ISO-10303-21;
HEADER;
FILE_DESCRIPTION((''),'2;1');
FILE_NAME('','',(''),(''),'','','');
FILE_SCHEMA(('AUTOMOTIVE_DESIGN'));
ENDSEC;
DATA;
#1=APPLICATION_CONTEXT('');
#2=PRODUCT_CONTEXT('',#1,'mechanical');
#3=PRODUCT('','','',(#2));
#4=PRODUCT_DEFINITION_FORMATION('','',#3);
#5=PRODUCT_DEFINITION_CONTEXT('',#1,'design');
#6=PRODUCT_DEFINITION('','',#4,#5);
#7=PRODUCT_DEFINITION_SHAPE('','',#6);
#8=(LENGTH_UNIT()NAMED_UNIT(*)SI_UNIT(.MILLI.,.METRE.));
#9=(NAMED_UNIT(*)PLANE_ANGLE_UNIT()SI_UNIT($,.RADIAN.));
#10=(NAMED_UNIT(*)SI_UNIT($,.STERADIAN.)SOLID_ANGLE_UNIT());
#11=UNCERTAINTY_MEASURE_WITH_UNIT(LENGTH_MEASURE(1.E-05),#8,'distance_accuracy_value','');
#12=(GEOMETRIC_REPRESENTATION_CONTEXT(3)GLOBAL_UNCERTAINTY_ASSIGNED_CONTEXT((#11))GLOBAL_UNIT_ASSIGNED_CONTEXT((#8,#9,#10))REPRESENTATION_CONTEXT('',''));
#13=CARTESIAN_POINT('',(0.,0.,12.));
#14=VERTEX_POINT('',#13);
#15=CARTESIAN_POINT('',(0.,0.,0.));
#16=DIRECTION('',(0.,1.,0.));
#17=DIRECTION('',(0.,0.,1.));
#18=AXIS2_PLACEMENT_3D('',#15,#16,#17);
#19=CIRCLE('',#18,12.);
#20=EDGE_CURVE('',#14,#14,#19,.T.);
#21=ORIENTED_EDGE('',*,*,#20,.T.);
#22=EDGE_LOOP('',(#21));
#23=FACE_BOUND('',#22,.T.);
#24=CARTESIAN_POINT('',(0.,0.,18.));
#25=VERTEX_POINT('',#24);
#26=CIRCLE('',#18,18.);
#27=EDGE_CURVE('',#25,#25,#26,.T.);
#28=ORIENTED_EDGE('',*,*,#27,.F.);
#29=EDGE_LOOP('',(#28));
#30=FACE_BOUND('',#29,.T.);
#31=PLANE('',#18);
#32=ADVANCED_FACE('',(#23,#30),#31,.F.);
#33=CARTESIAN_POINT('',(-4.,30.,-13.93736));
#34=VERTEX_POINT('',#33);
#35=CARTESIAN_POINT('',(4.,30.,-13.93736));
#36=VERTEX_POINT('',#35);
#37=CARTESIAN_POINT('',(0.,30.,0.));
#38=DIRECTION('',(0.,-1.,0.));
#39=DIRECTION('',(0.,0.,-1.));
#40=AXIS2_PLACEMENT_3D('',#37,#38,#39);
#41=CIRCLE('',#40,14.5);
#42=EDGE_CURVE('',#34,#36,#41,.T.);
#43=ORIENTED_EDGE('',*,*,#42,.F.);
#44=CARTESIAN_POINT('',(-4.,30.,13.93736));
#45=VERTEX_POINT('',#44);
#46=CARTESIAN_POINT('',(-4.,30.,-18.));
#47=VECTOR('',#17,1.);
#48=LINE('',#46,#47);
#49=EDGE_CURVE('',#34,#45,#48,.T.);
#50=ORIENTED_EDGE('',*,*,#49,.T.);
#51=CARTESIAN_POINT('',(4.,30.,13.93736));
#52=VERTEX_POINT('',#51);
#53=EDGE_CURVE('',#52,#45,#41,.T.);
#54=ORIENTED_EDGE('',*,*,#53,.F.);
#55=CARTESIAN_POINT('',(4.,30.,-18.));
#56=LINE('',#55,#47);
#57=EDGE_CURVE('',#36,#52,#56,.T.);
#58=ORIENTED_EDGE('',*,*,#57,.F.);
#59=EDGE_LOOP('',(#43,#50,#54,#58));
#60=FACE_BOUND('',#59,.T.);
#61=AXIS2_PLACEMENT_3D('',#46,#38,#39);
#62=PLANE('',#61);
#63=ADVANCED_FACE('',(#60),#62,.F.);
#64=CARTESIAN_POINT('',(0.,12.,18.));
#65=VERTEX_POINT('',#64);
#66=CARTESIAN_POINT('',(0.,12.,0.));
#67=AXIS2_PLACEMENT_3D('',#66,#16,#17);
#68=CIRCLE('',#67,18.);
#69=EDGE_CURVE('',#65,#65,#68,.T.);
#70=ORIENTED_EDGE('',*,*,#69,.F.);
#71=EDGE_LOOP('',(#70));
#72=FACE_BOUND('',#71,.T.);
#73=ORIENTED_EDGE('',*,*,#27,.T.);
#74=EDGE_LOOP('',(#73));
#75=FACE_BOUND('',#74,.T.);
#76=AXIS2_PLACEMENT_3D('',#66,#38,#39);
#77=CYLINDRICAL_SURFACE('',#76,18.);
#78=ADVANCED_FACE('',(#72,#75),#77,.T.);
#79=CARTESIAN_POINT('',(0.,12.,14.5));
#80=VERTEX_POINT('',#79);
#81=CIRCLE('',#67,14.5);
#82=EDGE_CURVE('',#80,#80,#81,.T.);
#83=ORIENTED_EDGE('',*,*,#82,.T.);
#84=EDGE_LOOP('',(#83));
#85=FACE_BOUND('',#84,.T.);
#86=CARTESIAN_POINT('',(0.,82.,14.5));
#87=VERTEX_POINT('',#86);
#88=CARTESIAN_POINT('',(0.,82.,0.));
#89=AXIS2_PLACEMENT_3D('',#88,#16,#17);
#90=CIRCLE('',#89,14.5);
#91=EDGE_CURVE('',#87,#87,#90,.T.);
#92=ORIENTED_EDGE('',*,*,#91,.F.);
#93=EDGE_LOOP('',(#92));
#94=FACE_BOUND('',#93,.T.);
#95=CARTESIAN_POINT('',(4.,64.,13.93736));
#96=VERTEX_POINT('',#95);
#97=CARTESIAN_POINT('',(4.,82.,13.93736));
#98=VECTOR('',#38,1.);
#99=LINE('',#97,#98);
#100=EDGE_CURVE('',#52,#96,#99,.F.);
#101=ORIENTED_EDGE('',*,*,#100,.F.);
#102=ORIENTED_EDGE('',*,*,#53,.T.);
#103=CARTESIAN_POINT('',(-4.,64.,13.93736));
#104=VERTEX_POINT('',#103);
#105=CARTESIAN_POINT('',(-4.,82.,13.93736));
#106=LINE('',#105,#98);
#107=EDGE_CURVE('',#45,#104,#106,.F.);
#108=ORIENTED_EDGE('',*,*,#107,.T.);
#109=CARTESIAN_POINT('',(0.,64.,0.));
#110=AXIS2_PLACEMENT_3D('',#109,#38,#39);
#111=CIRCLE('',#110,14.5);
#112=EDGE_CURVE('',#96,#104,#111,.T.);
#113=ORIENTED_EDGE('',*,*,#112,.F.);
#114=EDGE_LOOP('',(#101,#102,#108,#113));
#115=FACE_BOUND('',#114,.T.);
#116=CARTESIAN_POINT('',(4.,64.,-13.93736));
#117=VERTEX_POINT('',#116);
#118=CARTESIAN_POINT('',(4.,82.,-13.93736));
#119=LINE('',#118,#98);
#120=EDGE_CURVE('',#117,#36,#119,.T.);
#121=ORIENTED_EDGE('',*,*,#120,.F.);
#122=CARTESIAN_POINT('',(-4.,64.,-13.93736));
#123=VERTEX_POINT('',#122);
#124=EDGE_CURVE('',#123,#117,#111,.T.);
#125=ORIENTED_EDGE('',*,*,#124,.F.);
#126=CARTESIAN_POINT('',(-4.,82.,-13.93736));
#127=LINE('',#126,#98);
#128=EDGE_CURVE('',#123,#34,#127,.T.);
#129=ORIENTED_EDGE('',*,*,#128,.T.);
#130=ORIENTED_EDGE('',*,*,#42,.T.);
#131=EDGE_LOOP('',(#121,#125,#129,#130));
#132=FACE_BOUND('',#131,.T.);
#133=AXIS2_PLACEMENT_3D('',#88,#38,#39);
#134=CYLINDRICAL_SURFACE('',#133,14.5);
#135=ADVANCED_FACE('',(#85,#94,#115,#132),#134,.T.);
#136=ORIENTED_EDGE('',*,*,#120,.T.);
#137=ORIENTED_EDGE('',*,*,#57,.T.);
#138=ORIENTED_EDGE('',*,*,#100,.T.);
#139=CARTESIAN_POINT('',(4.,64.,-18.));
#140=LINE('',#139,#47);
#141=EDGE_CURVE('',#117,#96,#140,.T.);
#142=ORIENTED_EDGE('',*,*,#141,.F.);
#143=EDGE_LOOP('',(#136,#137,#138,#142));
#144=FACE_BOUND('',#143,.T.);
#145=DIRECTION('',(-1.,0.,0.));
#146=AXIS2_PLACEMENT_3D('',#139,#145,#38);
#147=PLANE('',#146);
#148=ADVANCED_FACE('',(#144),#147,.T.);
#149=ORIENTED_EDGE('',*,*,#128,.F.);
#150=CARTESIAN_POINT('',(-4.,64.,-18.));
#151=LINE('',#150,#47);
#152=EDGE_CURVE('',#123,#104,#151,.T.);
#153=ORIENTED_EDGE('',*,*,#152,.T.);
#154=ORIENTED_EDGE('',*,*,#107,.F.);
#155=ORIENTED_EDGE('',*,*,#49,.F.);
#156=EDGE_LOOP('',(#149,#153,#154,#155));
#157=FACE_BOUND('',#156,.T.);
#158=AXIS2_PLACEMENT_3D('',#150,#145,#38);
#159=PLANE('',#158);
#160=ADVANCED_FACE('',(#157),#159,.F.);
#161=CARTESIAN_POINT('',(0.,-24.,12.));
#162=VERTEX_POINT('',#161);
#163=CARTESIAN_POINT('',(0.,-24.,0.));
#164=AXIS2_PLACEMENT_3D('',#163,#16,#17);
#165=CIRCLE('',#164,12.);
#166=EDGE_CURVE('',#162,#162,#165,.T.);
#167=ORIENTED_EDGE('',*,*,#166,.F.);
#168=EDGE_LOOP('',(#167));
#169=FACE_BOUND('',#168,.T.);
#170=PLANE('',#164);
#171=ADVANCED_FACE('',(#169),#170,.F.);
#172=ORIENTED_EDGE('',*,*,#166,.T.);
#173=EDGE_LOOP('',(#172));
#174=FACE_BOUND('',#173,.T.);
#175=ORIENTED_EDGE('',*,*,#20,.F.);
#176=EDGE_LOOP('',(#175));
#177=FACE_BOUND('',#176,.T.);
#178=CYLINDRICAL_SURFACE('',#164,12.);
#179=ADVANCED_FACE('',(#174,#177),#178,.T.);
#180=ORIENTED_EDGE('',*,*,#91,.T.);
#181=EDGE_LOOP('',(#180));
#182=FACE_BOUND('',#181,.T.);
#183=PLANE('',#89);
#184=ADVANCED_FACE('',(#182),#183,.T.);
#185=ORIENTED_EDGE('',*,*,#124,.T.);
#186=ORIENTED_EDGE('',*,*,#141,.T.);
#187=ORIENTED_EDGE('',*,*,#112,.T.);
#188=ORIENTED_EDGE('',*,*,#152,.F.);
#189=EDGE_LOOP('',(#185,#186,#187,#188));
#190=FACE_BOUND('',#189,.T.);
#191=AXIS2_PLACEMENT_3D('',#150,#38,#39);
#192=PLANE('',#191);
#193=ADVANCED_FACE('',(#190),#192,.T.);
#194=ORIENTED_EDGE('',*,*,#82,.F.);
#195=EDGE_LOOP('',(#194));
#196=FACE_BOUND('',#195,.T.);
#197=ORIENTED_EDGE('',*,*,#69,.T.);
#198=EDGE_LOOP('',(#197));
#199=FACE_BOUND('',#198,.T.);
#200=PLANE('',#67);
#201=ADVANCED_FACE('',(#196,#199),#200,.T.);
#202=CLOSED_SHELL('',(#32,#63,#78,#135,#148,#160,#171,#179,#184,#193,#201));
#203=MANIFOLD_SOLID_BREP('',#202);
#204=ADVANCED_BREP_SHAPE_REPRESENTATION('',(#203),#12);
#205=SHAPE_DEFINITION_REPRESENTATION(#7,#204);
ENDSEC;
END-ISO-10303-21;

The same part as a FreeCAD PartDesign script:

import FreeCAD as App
import Part
import Sketcher
from FreeCAD import Vector
Q = App.Units.Quantity

doc = App.newDocument("Part")
body = doc.addObject("PartDesign::Body", "Body")

sketch1 = doc.addObject("Sketcher::SketchObject", "Sketch")
body.addObject(sketch1)
sketch1.AttachmentSupport = (doc.XZ_Plane, [""])
sketch1.MapMode = "FlatFace"
sketch1.addGeometry(Part.Circle(Vector(0, 0, 0), Vector(0, 0, 1), 12), False)
sketch1.addConstraint([
    Sketcher.Constraint("Coincident", 0, 3, -1, 1),
    Sketcher.Constraint("Diameter", 0, Q("24 mm")),
])
pad1 = doc.addObject("PartDesign::Pad", "Pad")
body.addObject(pad1)
pad1.Profile = sketch1
pad1.Length = 24

sketch2 = doc.addObject("Sketcher::SketchObject", "Sketch001")
body.addObject(sketch2)
sketch2.AttachmentSupport = (doc.XZ_Plane, [""])
sketch2.MapMode = "FlatFace"
sketch2.AttachmentOffset = App.Placement(Vector(0, 0, -12), App.Rotation())
sketch2.addGeometry(Part.Circle(Vector(0, 0, 0), Vector(0, 0, 1), 18), False)
sketch2.addConstraint([
    Sketcher.Constraint("Coincident", 0, 3, -1, 1),
    Sketcher.Constraint("Diameter", 0, Q("36 mm")),
])
pad2 = doc.addObject("PartDesign::Pad", "Pad001")
body.addObject(pad2)
pad2.Profile = sketch2
pad2.Length = 12

sketch3 = doc.addObject("Sketcher::SketchObject", "Sketch002")
body.addObject(sketch3)
sketch3.AttachmentSupport = (doc.XZ_Plane, [""])
sketch3.MapMode = "FlatFace"
sketch3.AttachmentOffset = App.Placement(Vector(0, 0, -12), App.Rotation())
sketch3.addGeometry(Part.Circle(Vector(0, 0, 0), Vector(0, 0, 1), 14), False)
sketch3.addConstraint([
    Sketcher.Constraint("Coincident", 0, 3, -1, 1),
    Sketcher.Constraint("Diameter", 0, Q("29 mm")),
])
pad3 = doc.addObject("PartDesign::Pad", "Pad002")
body.addObject(pad3)
pad3.Profile = sketch3
pad3.Length = 70
pad3.Reversed = True

sketch4 = doc.addObject("Sketcher::SketchObject", "Sketch003")
body.addObject(sketch4)
sketch4.AttachmentSupport = (doc.XY_Plane, [""])
sketch4.MapMode = "FlatFace"
sketch4.addGeometry([
    Part.LineSegment(Vector(-4, 64, 0), Vector(-4, 30, 0)),
    Part.LineSegment(Vector(-4, 30, 0), Vector(4, 30, 0)),
    Part.LineSegment(Vector(4, 30, 0), Vector(4, 64, 0)),
    Part.LineSegment(Vector(4, 64, 0), Vector(-4, 64, 0)),
], False)
sketch4.addConstraint([
    Sketcher.Constraint("Coincident", 0, 2, 1, 1),
    Sketcher.Constraint("Coincident", 1, 2, 2, 1),
    Sketcher.Constraint("Coincident", 2, 2, 3, 1),
    Sketcher.Constraint("Coincident", 3, 2, 0, 1),
    Sketcher.Constraint("Vertical", 0),
    Sketcher.Constraint("Horizontal", 1),
    Sketcher.Constraint("Vertical", 2),
    Sketcher.Constraint("Horizontal", 3),
    Sketcher.Constraint("DistanceX", 1, 1, 1, 2, Q("8 mm")),
    Sketcher.Constraint("DistanceY", 0, 2, 0, 1, Q("34 mm")),
    Sketcher.Constraint("DistanceX", 0, 2, -1, 1, Q("4 mm")),
    Sketcher.Constraint("DistanceY", -1, 1, 0, 2, Q("30 mm")),
])
pocket1 = doc.addObject("PartDesign::Pocket", "Pocket")
body.addObject(pocket1)
pocket1.Profile = sketch4
pocket1.Type = "ThroughAll"
pocket1.Midplane = True

doc.recompute()
